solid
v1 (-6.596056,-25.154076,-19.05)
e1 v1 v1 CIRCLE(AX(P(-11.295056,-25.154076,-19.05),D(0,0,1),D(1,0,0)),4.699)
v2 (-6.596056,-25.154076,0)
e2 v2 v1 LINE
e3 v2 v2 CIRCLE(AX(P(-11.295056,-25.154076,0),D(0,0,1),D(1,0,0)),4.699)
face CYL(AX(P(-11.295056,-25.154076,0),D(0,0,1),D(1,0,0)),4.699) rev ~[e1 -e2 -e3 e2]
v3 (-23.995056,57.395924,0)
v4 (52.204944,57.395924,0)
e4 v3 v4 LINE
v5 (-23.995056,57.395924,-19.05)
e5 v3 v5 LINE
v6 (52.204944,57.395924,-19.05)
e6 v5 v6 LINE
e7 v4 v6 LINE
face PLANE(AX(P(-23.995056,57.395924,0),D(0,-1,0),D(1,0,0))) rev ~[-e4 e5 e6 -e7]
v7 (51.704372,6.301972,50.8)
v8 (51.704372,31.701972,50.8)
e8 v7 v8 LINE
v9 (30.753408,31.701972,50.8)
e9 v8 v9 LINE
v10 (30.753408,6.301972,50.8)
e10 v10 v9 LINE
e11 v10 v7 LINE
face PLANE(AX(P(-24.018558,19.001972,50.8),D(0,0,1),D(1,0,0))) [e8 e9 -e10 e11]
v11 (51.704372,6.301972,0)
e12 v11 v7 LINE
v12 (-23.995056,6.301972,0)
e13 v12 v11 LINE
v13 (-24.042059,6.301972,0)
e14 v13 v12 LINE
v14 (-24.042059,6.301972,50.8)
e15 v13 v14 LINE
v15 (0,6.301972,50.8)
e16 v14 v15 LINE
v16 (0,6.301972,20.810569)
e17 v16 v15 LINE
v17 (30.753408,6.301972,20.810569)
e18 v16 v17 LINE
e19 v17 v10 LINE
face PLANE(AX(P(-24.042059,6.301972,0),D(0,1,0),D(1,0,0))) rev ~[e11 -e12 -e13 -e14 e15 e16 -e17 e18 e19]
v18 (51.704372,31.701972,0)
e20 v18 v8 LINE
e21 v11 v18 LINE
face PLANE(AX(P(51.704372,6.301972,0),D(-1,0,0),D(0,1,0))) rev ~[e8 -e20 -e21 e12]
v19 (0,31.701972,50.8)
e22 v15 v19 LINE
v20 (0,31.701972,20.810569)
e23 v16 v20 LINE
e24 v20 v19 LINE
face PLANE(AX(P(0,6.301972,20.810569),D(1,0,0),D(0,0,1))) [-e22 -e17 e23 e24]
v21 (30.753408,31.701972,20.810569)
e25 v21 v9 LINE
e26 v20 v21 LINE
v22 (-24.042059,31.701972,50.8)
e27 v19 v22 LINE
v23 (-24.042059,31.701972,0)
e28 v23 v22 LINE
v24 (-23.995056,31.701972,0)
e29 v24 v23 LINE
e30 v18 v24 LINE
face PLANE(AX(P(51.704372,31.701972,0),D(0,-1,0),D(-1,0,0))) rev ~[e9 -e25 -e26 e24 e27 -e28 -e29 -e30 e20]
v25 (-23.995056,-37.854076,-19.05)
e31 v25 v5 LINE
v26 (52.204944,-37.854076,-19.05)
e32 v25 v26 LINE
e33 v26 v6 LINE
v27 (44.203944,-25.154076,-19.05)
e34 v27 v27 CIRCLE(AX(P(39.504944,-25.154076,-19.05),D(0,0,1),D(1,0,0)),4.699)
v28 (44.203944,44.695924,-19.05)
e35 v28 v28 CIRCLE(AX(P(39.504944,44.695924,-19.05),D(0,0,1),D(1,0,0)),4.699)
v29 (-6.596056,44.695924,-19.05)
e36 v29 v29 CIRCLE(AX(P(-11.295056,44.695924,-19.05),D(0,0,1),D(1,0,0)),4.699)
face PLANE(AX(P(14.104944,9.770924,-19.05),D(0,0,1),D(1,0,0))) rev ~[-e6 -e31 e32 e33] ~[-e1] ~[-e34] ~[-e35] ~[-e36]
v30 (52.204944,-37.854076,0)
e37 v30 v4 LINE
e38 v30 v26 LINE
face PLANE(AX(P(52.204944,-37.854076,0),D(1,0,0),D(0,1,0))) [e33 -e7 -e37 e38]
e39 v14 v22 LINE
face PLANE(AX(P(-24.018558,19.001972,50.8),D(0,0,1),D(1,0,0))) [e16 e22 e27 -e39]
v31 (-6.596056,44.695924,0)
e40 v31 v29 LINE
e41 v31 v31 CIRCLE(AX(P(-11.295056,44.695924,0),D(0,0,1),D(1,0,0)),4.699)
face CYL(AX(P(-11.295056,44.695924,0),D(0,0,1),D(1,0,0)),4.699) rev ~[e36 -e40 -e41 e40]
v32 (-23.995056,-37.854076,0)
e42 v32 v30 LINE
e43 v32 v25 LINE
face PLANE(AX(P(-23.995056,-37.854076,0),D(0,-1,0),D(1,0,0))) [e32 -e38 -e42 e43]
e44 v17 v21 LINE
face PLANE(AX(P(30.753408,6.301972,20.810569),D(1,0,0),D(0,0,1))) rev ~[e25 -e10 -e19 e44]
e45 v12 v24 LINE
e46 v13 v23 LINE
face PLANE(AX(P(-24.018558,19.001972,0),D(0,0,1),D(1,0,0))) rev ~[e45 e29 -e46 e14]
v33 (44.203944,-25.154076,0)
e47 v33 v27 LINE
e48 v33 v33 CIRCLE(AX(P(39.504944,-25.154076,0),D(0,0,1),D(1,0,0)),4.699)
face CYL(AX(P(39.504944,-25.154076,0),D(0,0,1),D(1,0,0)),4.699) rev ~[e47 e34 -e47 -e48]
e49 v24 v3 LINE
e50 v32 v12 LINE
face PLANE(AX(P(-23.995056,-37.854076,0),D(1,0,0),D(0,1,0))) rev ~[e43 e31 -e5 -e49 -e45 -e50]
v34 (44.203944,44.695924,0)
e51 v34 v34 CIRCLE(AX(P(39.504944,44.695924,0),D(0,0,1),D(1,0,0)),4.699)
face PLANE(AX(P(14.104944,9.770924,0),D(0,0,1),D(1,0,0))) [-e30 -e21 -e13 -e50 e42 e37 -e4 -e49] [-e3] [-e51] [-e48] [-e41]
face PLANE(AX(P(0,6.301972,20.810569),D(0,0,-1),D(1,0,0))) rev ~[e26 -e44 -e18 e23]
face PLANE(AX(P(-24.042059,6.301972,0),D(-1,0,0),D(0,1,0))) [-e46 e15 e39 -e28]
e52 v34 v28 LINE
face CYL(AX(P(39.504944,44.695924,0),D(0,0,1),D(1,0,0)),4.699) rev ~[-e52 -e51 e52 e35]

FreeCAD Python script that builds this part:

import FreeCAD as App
import Part
import Sketcher
from FreeCAD import Vector
Q = App.Units.Quantity

doc = App.newDocument("Part")
body = doc.addObject("PartDesign::Body", "Body")

# Sketch on XY plane
sketch1 = body.newObject("Sketcher::SketchObject", "Sketch")
sketch1.AttachmentSupport = (doc.getObject("XY_Plane"), [""])
sketch1.MapMode = "FlatFace"
sketch1.addGeometry([
    Part.LineSegment(Vector(-24.042059, 31.701972, 0), Vector(-24.042059, 6.301972, 0)),
    Part.LineSegment(Vector(-24.042059, 6.301972, 0), Vector(51.704372, 6.301972, 0)),
    Part.LineSegment(Vector(51.704372, 6.301972, 0), Vector(51.704372, 31.701972, 0)),
    Part.LineSegment(Vector(51.704372, 31.701972, 0), Vector(-24.042059, 31.701972, 0)),
], False)
sketch1.addConstraint([
    Sketcher.Constraint("Coincident", 0, 2, 1, 1),
    Sketcher.Constraint("Coincident", 1, 2, 2, 1),
    Sketcher.Constraint("Coincident", 2, 2, 3, 1),
    Sketcher.Constraint("Coincident", 3, 2, 0, 1),
    Sketcher.Constraint("Vertical", 0),
    Sketcher.Constraint("Horizontal", 1),
    Sketcher.Constraint("Vertical", 2),
    Sketcher.Constraint("Horizontal", 3),
    Sketcher.Constraint("DistanceY", 0, 2, 0, 1, Q("1 in")),
    Sketcher.Constraint("DistanceX", 1, 1, 1, 2, 75.74643),
    Sketcher.Constraint("DistanceX", 0, 2, -1, 1, 24.042059),
    Sketcher.Constraint("DistanceY", -1, 1, 0, 2, 6.301972),
])
pad1 = body.newObject("PartDesign::Pad", "Pad")
pad1.Profile = sketch1
pad1.Length = Q("2 in")

# Sketch on XY plane
sketch2 = body.newObject("Sketcher::SketchObject", "Sketch001")
sketch2.AttachmentSupport = (doc.getObject("XY_Plane"), [""])
sketch2.MapMode = "FlatFace"
sketch2.addGeometry([
    Part.LineSegment(Vector(-23.995056, 57.395924, 0), Vector(-23.995056, -37.854076, 0)),  # 0
    Part.LineSegment(Vector(-23.995056, -37.854076, 0), Vector(52.204944, -37.854076, 0)),  # 1
    Part.LineSegment(Vector(52.204944, -37.854076, 0), Vector(52.204944, 57.395924, 0)),  # 2
    Part.LineSegment(Vector(52.204944, 57.395924, 0), Vector(-23.995056, 57.395924, 0)),  # 3
    Part.Circle(Vector(-11.295056, -25.154076, 0), Vector(0, 0, 1), 4.699),  # 4
    Part.Circle(Vector(39.504944, -25.154076, 0), Vector(0, 0, 1), 4.699),  # 5
    Part.Circle(Vector(-11.295056, 44.695924, 0), Vector(0, 0, 1), 4.699),  # 6
    Part.Circle(Vector(39.504944, 44.695924, 0), Vector(0, 0, 1), 4.699),  # 7
], False)
sketch2.addConstraint([
    Sketcher.Constraint("Coincident", 0, 2, 1, 1),
    Sketcher.Constraint("Coincident", 1, 2, 2, 1),
    Sketcher.Constraint("Coincident", 2, 2, 3, 1),
    Sketcher.Constraint("Coincident", 3, 2, 0, 1),
    Sketcher.Constraint("Vertical", 0),
    Sketcher.Constraint("Horizontal", 1),
    Sketcher.Constraint("Vertical", 2),
    Sketcher.Constraint("Horizontal", 3),
    Sketcher.Constraint("Equal", 4, 5),
    Sketcher.Constraint("Equal", 5, 6),
    Sketcher.Constraint("Equal", 6, 7),
    Sketcher.Constraint("Horizontal", 4, 3, 5, 3),
    Sketcher.Constraint("Horizontal", 6, 3, 7, 3),
    Sketcher.Constraint("Vertical", 4, 3, 6, 3),
    Sketcher.Constraint("Vertical", 5, 3, 7, 3),
    Sketcher.Constraint("Diameter", 4, Q("0.37 in")),
    Sketcher.Constraint("DistanceX", 1, 1, 1, 2, Q("3 in")),
    Sketcher.Constraint("DistanceX", 4, 3, 5, 3, Q("2 in")),
    Sketcher.Constraint("DistanceY", 0, 2, 0, 1, Q("3.75 in")),
    Sketcher.Constraint("DistanceX", 0, 2, 4, 3, Q("0.5 in")),
    Sketcher.Constraint("DistanceY", 0, 2, 4, 3, Q("0.5 in")),
    Sketcher.Constraint("DistanceY", 7, 3, 2, 2, Q("0.5 in")),
    Sketcher.Constraint("DistanceX", 4, 3, -1, 1, 11.295056),
    Sketcher.Constraint("DistanceY", 4, 3, -1, 1, 25.154076),
])
pad2 = body.newObject("PartDesign::Pad", "Pad001")
pad2.Profile = sketch2
pad2.Length = Q("0.75 in")
pad2.Reversed = True

# Sketch on XZ plane
sketch3 = body.newObject("Sketcher::SketchObject", "Sketch002")
sketch3.AttachmentSupport = (doc.getObject("XZ_Plane"), [""])
sketch3.MapMode = "FlatFace"
sketch3.AttachmentOffset = App.Placement(Vector(0, 0, -6.301972), App.Rotation())
sketch3.addGeometry([
    Part.LineSegment(Vector(0, 50.8, 0), Vector(0, 20.810569, 0)),
    Part.LineSegment(Vector(0, 20.810569, 0), Vector(30.753408, 20.810569, 0)),
    Part.LineSegment(Vector(30.753408, 20.810569, 0), Vector(30.753408, 50.8, 0)),
    Part.LineSegment(Vector(30.753408, 50.8, 0), Vector(0, 50.8, 0)),
], False)
sketch3.addConstraint([
    Sketcher.Constraint("Coincident", 0, 2, 1, 1),
    Sketcher.Constraint("Coincident", 1, 2, 2, 1),
    Sketcher.Constraint("Coincident", 2, 2, 3, 1),
    Sketcher.Constraint("Coincident", 3, 2, 0, 1),
    Sketcher.Constraint("Vertical", 0),
    Sketcher.Constraint("Horizontal", 1),
    Sketcher.Constraint("Vertical", 2),
    Sketcher.Constraint("Horizontal", 3),
    Sketcher.Constraint("PointOnObject", 0, 2, -2),
    Sketcher.Constraint("DistanceY", -1, 1, 2, 2, Q("2 in")),
    Sketcher.Constraint("DistanceY", 0, 2, 0, 1, 29.989431),
    Sketcher.Constraint("DistanceX", 1, 1, 1, 2, 30.753408),
])
pocket1 = body.newObject("PartDesign::Pocket", "Pocket")
pocket1.Profile = sketch3
pocket1.Length = Q("1.25 in")

doc.recompute()
